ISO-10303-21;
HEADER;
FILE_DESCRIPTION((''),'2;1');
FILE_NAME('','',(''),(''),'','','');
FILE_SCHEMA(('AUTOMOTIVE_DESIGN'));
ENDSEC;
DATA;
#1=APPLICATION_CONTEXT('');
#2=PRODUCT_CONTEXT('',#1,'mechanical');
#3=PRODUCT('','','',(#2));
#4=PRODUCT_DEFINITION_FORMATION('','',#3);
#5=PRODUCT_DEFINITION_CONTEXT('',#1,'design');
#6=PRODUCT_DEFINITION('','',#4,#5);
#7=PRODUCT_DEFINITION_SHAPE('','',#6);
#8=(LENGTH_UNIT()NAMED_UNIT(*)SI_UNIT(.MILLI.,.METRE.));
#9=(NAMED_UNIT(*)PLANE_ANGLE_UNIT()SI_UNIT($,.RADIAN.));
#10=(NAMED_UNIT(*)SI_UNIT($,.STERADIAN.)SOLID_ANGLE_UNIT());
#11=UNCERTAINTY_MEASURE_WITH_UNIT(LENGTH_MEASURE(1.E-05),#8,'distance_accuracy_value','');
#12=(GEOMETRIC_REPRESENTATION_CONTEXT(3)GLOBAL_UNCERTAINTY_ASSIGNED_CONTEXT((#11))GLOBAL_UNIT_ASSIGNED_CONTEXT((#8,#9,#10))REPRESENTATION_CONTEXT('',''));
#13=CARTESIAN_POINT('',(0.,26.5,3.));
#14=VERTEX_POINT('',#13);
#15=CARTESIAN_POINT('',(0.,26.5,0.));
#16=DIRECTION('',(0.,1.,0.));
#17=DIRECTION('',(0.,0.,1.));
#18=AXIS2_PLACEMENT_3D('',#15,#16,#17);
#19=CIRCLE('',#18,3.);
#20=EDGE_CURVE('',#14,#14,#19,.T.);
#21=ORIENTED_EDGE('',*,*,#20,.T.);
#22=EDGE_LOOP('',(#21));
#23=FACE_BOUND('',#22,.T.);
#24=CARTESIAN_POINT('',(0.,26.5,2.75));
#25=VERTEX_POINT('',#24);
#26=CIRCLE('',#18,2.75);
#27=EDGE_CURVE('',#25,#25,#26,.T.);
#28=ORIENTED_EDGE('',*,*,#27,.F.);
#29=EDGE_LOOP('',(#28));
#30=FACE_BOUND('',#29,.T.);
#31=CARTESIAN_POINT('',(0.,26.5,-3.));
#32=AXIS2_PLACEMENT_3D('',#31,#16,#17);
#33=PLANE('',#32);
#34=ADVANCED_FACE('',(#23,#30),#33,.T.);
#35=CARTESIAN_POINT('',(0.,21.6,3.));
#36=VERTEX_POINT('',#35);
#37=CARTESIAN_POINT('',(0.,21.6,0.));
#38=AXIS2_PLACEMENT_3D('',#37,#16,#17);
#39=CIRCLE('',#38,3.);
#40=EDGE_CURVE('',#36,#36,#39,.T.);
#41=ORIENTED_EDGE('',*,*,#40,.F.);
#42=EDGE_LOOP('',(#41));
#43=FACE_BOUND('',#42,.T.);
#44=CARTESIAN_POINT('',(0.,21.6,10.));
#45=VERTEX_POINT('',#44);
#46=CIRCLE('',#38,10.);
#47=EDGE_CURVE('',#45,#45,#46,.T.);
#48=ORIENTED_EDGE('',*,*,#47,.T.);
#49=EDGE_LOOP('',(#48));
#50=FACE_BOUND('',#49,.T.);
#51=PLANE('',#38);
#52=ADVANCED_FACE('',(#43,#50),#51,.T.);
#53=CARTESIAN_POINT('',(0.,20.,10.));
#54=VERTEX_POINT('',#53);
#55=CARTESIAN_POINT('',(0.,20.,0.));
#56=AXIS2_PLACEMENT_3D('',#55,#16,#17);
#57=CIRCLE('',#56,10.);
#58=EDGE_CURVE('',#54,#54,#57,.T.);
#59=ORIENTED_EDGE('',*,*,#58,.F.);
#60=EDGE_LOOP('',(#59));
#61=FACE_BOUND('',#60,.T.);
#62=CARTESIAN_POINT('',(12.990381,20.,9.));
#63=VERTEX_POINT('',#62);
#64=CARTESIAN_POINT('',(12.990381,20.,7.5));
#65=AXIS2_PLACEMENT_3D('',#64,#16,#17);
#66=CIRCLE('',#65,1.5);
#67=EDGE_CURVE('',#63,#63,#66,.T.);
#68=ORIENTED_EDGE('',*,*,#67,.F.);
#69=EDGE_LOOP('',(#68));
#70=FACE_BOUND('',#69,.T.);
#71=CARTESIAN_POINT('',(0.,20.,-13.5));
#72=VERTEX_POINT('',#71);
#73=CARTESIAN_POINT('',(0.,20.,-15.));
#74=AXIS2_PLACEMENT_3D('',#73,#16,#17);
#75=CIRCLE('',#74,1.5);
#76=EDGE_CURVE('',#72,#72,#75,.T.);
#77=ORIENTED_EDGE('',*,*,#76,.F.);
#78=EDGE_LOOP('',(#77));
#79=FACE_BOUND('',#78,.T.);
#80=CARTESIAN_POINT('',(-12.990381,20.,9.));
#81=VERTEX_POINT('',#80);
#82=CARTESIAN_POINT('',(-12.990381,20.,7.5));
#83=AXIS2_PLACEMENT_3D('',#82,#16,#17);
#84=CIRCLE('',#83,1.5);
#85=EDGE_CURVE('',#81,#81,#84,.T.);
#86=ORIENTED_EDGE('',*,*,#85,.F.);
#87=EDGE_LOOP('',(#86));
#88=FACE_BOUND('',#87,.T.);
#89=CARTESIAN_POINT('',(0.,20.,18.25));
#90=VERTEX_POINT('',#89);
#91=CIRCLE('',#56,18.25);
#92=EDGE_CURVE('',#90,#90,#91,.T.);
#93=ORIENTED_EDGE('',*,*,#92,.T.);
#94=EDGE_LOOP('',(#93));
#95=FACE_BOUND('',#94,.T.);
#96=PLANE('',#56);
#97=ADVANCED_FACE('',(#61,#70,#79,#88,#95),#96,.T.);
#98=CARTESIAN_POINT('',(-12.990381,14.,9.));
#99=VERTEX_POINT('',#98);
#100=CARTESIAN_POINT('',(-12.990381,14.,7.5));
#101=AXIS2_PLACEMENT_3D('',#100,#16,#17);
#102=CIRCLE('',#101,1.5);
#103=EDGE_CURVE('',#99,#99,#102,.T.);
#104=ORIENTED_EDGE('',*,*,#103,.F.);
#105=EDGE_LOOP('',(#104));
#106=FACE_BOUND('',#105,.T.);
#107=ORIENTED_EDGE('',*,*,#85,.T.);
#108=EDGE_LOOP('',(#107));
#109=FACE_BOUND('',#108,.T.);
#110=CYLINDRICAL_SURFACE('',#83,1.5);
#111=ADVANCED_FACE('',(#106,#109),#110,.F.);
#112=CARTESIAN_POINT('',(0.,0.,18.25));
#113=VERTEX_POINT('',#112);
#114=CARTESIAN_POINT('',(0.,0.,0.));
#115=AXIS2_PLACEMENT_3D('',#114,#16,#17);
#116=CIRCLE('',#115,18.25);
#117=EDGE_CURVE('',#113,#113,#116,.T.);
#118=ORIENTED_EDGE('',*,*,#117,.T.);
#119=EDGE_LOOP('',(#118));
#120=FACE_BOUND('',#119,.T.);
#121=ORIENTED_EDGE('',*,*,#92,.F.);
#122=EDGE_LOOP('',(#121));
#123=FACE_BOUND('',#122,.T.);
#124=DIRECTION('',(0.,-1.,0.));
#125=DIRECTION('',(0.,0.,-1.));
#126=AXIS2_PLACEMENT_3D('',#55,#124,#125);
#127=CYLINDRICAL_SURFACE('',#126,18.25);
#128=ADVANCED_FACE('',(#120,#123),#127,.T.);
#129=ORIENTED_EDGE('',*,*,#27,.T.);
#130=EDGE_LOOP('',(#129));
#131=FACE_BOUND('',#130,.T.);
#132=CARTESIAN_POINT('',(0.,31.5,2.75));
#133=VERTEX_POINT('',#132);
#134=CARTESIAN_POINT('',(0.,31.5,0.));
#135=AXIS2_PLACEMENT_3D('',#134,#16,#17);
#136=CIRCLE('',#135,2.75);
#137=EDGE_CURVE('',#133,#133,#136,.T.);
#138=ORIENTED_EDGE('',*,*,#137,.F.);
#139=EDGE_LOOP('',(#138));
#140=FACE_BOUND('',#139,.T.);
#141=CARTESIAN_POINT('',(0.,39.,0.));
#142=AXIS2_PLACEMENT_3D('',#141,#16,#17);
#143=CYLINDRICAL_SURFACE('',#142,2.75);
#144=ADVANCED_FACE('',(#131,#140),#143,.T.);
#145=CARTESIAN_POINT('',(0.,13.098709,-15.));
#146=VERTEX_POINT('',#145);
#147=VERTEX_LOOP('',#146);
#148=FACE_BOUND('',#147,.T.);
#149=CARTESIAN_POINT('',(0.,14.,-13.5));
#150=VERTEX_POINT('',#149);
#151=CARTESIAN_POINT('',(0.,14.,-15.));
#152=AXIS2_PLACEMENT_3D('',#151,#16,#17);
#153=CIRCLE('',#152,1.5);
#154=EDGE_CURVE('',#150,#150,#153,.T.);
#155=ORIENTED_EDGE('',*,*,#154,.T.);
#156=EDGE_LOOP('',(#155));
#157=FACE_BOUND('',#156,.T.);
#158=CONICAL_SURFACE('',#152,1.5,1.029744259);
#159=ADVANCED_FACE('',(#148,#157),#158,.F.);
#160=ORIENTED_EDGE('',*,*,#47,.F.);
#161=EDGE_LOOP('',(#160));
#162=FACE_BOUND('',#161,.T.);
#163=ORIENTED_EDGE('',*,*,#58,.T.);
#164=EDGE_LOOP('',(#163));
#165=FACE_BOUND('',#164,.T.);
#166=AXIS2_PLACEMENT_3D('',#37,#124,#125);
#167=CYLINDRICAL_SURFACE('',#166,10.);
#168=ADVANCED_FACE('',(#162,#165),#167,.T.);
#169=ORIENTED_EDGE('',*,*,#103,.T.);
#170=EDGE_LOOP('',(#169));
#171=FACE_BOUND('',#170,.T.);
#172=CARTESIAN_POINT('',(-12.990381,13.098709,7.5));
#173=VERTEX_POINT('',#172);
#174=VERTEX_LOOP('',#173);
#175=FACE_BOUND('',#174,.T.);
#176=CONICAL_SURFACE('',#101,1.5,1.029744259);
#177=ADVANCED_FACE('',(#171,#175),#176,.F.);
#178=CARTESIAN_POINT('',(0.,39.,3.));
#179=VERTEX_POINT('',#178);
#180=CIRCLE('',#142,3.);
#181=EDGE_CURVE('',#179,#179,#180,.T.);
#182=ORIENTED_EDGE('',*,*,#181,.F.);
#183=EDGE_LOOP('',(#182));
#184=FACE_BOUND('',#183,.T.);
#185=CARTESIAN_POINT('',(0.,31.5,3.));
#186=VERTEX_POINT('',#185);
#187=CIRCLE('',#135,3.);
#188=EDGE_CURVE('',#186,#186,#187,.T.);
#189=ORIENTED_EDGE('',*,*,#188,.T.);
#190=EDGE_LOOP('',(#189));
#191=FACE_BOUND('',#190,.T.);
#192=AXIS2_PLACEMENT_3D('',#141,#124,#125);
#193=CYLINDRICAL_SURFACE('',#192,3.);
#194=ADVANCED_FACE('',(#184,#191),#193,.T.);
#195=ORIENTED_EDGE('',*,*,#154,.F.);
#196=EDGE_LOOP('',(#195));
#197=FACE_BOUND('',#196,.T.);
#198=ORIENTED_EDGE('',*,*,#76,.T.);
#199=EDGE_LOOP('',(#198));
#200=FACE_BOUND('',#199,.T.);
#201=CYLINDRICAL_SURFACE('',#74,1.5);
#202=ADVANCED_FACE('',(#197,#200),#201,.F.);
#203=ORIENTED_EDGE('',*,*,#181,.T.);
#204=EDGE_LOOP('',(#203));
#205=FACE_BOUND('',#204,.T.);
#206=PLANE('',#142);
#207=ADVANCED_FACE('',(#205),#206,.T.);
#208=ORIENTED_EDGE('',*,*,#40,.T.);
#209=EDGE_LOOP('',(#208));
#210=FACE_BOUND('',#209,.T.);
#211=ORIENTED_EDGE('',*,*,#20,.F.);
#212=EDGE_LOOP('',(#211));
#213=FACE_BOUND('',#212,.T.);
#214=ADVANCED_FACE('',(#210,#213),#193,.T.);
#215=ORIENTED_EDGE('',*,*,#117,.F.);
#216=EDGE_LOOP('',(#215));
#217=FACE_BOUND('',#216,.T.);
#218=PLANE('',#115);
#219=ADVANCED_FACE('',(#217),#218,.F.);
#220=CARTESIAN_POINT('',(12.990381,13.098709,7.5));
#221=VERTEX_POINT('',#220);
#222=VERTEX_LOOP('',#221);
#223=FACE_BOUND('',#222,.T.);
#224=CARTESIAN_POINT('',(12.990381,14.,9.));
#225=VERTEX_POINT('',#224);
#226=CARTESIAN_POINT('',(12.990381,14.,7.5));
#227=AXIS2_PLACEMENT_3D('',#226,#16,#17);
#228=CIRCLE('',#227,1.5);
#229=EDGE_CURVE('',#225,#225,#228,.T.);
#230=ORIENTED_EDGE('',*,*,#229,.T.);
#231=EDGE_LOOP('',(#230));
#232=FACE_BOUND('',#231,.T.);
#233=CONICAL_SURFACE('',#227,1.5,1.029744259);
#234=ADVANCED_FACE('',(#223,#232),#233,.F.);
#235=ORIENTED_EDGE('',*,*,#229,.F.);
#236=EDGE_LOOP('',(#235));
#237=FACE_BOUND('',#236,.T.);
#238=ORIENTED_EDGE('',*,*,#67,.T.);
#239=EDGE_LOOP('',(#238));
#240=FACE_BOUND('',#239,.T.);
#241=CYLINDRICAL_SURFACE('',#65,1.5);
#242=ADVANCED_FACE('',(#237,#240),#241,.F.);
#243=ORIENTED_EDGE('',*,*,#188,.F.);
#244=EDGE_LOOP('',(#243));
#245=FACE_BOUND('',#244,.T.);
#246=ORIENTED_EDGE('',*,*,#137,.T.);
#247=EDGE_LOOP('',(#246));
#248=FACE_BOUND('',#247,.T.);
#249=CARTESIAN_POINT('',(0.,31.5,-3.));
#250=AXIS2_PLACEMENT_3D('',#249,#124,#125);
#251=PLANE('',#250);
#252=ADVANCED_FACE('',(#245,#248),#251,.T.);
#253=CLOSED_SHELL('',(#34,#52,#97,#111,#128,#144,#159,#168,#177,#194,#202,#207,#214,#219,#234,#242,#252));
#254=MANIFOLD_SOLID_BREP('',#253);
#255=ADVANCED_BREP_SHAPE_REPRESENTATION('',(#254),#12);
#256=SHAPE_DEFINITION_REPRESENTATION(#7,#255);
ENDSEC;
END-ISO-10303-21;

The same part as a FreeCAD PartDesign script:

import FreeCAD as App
import Part
import Sketcher
Q = App.Units.Quantity

doc = App.newDocument("Part")
params = doc.addObject("Spreadsheet::Sheet", "Params")
for row, (alias, value) in enumerate([
    ("sketch1_diameter", "36.5 mm"),
    ("pad1_length", "20 mm"),
    ("sketch2_diameter", "20 mm"),
    ("pad2_length", "1.6 mm"),
    ("sketch3_diameter", "6 mm"),
    ("pad3_length", "17.4 mm"),
    ("sketch4_width", "5 mm"),
    ("sketch4_height", "0.25 mm"),
    ("groove_angle", "360 deg"),
    ("sketch5_width", "6 mm"),
    ("sketch5_height", "1.5 mm"),
    ("groove2_angle", "360 deg"),
], start=1):
    params.set(f"A{row}", alias)
    params.set(f"B{row}", "=" + value)
    params.setAlias(f"B{row}", alias)

body = doc.addObject("PartDesign::Body", "Body")

# Sketch on XZ plane
sketch1 = doc.addObject("Sketcher::SketchObject", "Sketch")
body.addObject(sketch1)
sketch1.AttachmentSupport = (doc.XZ_Plane, [""])
sketch1.MapMode = "FlatFace"
sketch1.addGeometry(Part.Circle(App.Vector(0, 0, 0), App.Vector(0, 0, 1), 18.25), False)
sketch1.addConstraint([
    Sketcher.Constraint("Coincident", 0, 3, -1, 1),
    Sketcher.Constraint("Diameter", 0, 36.5),
])
sketch1.setExpression("Constraints[1]", "Params.sketch1_diameter")
pad1 = doc.addObject("PartDesign::Pad", "Pad")
body.addObject(pad1)
pad1.Profile = sketch1
pad1.setExpression("Length", "Params.pad1_length")
pad1.Reversed = True

# Sketch on XZ plane
sketch2 = doc.addObject("Sketcher::SketchObject", "Sketch001")
body.addObject(sketch2)
sketch2.AttachmentSupport = (doc.XZ_Plane, [""])
sketch2.MapMode = "FlatFace"
sketch2.AttachmentOffset = App.Placement(App.Vector(0, 0, -20), App.Rotation())
sketch2.addGeometry(Part.Circle(App.Vector(0, 0, 0), App.Vector(0, 0, 1), 10), False)
sketch2.addConstraint([
    Sketcher.Constraint("Coincident", 0, 3, -1, 1),
    Sketcher.Constraint("Diameter", 0, 20.0),
])
sketch2.setExpression("Constraints[1]", "Params.sketch2_diameter")
pad2 = doc.addObject("PartDesign::Pad", "Pad001")
body.addObject(pad2)
pad2.Profile = sketch2
pad2.setExpression("Length", "Params.pad2_length")
pad2.Reversed = True

# Sketch on XZ plane
sketch3 = doc.addObject("Sketcher::SketchObject", "Sketch002")
body.addObject(sketch3)
sketch3.AttachmentSupport = (doc.XZ_Plane, [""])
sketch3.MapMode = "FlatFace"
sketch3.AttachmentOffset = App.Placement(App.Vector(0, 0, -21.6), App.Rotation())
sketch3.addGeometry(Part.Circle(App.Vector(0, 0, 0), App.Vector(0, 0, 1), 3), False)
sketch3.addConstraint([
    Sketcher.Constraint("Coincident", 0, 3, -1, 1),
    Sketcher.Constraint("Diameter", 0, 6.0),
])
sketch3.setExpression("Constraints[1]", "Params.sketch3_diameter")
pad3 = doc.addObject("PartDesign::Pad", "Pad002")
body.addObject(pad3)
pad3.Profile = sketch3
pad3.setExpression("Length", "Params.pad3_length")
pad3.Reversed = True

# Sketch on YZ plane
sketch4 = doc.addObject("Sketcher::SketchObject", "Sketch003")
body.addObject(sketch4)
sketch4.AttachmentSupport = (doc.YZ_Plane, [""])
sketch4.MapMode = "FlatFace"
sketch4.addGeometry([
    Part.LineSegment(App.Vector(31.5, -2.75, 0), App.Vector(26.5, -2.75, 0)),
    Part.LineSegment(App.Vector(26.5, -2.75, 0), App.Vector(26.5, -3, 0)),
    Part.LineSegment(App.Vector(26.5, -3, 0), App.Vector(31.5, -3, 0)),
    Part.LineSegment(App.Vector(31.5, -3, 0), App.Vector(31.5, -2.75, 0)),
], False)
sketch4.addConstraint([
    Sketcher.Constraint("Coincident", 0, 2, 1, 1),
    Sketcher.Constraint("Coincident", 1, 2, 2, 1),
    Sketcher.Constraint("Coincident", 2, 2, 3, 1),
    Sketcher.Constraint("Coincident", 3, 2, 0, 1),
    Sketcher.Constraint("Horizontal", 0),
    Sketcher.Constraint("Vertical", 1),
    Sketcher.Constraint("Horizontal", 2),
    Sketcher.Constraint("Vertical", 3),
    Sketcher.Constraint("DistanceX", 0, 2, 0, 1, 5.0),
    Sketcher.Constraint("DistanceY", 1, 2, -1, 1, 3.0),
    Sketcher.Constraint("DistanceY", 1, 2, 1, 1, 0.25),
    Sketcher.Constraint("DistanceX", -1, 1, 0, 2, 26.5),
])
sketch4.setExpression("Constraints[8]", "Params.sketch4_width")
sketch4.setExpression("Constraints[10]", "Params.sketch4_height")
groove = doc.addObject("PartDesign::Groove", "Groove")
body.addObject(groove)
groove.Profile = sketch4
groove.ReferenceAxis = (sketch4, ["H_Axis"])
groove.setExpression("Angle", "Params.groove_angle")

# Sketch on YZ plane
sketch5 = doc.addObject("Sketcher::SketchObject", "Sketch004")
body.addObject(sketch5)
sketch5.AttachmentSupport = (doc.YZ_Plane, [""])
sketch5.MapMode = "FlatFace"
sketch5.addGeometry([
    Part.LineSegment(App.Vector(13.098709, -15, 0), App.Vector(20, -15, 0)),
    Part.LineSegment(App.Vector(20, -15, 0), App.Vector(20, -13.5, 0)),
    Part.LineSegment(App.Vector(20, -13.5, 0), App.Vector(14, -13.5, 0)),
    Part.LineSegment(App.Vector(14, -13.5, 0), App.Vector(13.098709, -15, 0)),
], False)
sketch5.addGeometry(Part.LineSegment(App.Vector(20, -15, 0), App.Vector(13.098709, -15, 0)), True)  # axis
sketch5.addConstraint([
    Sketcher.Constraint("Coincident", 0, 2, 1, 1),
    Sketcher.Constraint("Coincident", 1, 2, 2, 1),
    Sketcher.Constraint("Coincident", 2, 2, 3, 1),
    Sketcher.Constraint("Coincident", 3, 2, 0, 1),
    Sketcher.Constraint("Horizontal", 0),
    Sketcher.Constraint("Vertical", 1),
    Sketcher.Constraint("Horizontal", 2),
    Sketcher.Constraint("Horizontal", 4),
    Sketcher.Constraint("Coincident", 4, 1, 0, 2),
    Sketcher.Constraint("Equal", 0, 4),
    Sketcher.Constraint("DistanceX", 2, 2, 2, 1, 6.0),
    Sketcher.Constraint("Angle", 3, Q("-121 deg")),
    Sketcher.Constraint("DistanceY", 1, 1, 1, 2, 1.5),
    Sketcher.Constraint("DistanceX", -1, 1, 0, 2, 20.0),
    Sketcher.Constraint("DistanceY", 0, 2, -1, 1, 15.0),
])
sketch5.setExpression("Constraints[10]", "Params.sketch5_width")
sketch5.setExpression("Constraints[12]", "Params.sketch5_height")
groove2 = doc.addObject("PartDesign::Groove", "Groove001")
body.addObject(groove2)
groove2.Profile = sketch5
groove2.ReferenceAxis = (sketch5, ["Axis0"])
groove2.setExpression("Angle", "Params.groove2_angle")
doc.recompute()

polarpattern = doc.addObject("PartDesign::PolarPattern", "PolarPattern")
body.addObject(polarpattern)
polarpattern.Originals = [groove2]
polarpattern.Axis = (doc.Y_Axis, [""])
polarpattern.Angle = 360
polarpattern.Occurrences = 3
body.Tip = polarpattern

doc.recompute()
